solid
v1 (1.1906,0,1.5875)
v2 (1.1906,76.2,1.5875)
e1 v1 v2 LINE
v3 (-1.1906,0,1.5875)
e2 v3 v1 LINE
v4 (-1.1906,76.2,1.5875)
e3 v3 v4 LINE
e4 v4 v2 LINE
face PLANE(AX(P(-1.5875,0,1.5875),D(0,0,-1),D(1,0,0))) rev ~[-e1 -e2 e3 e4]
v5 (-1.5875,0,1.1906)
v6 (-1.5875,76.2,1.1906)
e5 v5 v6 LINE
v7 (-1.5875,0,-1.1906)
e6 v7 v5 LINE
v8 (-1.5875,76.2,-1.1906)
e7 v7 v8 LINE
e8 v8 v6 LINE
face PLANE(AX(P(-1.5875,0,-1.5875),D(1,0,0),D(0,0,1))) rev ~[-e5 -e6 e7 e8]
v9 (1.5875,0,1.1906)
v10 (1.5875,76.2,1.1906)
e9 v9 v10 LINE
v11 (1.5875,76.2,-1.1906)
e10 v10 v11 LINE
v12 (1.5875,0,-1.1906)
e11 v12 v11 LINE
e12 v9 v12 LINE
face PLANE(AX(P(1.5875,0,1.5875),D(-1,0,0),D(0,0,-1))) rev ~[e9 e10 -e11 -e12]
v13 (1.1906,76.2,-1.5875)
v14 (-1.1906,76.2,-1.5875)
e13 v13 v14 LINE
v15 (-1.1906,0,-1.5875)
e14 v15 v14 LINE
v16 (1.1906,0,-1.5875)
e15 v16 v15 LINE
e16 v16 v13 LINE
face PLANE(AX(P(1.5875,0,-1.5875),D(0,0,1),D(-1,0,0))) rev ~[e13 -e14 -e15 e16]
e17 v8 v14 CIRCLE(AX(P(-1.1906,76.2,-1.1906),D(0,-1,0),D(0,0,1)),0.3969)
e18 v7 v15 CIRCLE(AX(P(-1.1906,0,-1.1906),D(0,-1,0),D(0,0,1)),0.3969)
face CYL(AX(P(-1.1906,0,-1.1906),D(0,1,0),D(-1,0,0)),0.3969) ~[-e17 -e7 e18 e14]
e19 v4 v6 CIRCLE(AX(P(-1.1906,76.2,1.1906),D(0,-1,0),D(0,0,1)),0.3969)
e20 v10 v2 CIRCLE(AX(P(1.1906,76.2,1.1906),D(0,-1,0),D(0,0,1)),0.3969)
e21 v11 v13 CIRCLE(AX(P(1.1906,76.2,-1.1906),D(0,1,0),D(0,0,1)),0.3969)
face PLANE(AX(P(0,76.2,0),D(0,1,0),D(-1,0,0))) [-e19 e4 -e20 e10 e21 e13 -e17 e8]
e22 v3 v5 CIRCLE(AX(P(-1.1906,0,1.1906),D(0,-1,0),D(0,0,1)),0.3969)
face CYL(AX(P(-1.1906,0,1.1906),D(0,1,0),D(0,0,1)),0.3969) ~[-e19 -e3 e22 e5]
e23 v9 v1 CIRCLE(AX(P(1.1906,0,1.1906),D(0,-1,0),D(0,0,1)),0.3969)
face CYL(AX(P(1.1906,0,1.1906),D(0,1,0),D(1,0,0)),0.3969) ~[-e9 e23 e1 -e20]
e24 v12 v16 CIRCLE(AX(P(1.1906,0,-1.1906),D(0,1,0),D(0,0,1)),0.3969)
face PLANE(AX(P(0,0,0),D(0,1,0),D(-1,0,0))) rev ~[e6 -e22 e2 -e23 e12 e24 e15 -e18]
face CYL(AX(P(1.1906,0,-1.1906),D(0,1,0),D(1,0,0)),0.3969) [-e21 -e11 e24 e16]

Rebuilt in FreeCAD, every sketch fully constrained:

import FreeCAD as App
import Part
import Sketcher
from FreeCAD import Vector
Q = App.Units.Quantity


def edges_at(feature, points):
    """Names of the edges that pass closest to the given points."""
    edges = feature.Shape.Edges
    near = lambda p: min(range(len(edges)), key=lambda i: edges[i].distToShape(Part.Vertex(*p))[0])
    return sorted({f"Edge{near(p) + 1}" for p in points})

doc = App.newDocument("Part")
body = doc.addObject("PartDesign::Body", "Body")

# Sketch on XZ plane
sketch1 = body.newObject("Sketcher::SketchObject", "Sketch")
sketch1.AttachmentSupport = (doc.getObject("XZ_Plane"), [""])
sketch1.MapMode = "FlatFace"
sketch1.addGeometry(Part.LineSegment(Vector(1.5875, 1.5875, 0), Vector(1.5875, -1.5875, 0)), False)
sketch1.addGeometry(Part.LineSegment(Vector(1.5875, -1.5875, 0), Vector(-1.5875, -1.5875, 0)), False)
sketch1.addGeometry(Part.LineSegment(Vector(-1.5875, -1.5875, 0), Vector(-1.5875, 1.5875, 0)), False)
sketch1.addGeometry(Part.LineSegment(Vector(-1.5875, 1.5875, 0), Vector(1.5875, 1.5875, 0)), False)
sketch1.addConstraint(Sketcher.Constraint("Coincident", 0, 2, 1, 1))
sketch1.addConstraint(Sketcher.Constraint("Coincident", 1, 2, 2, 1))
sketch1.addConstraint(Sketcher.Constraint("Coincident", 2, 2, 3, 1))
sketch1.addConstraint(Sketcher.Constraint("Coincident", 3, 2, 0, 1))
sketch1.addConstraint(Sketcher.Constraint("Vertical", 0))
sketch1.addConstraint(Sketcher.Constraint("Horizontal", 1))
sketch1.addConstraint(Sketcher.Constraint("Vertical", 2))
sketch1.addConstraint(Sketcher.Constraint("Horizontal", 3))
sketch1.addConstraint(Sketcher.Constraint("Symmetric", 0, 2, 2, 2, -1, 1))
sketch1.addConstraint(Sketcher.Constraint("Equal", 3, 0))
sketch1.addConstraint(Sketcher.Constraint("DistanceX", 1, 2, 1, 1, Q("0.125 in")))
pad1 = body.newObject("PartDesign::Pad", "Pad")
pad1.Profile = sketch1
pad1.Length = Q("3 in")
pad1.Reversed = True
doc.recompute()

fillet = body.newObject("PartDesign::Fillet", "Fillet")
fillet.Base = (pad1, edges_at(pad1, [
    (1.587, 38.1, 1.587),
    (1.587, 38.1, -1.587),
    (-1.587, 38.1, -1.587),
    (-1.587, 38.1, 1.587),
]))
fillet.Radius = Q("0.015626 in")

doc.recompute()
